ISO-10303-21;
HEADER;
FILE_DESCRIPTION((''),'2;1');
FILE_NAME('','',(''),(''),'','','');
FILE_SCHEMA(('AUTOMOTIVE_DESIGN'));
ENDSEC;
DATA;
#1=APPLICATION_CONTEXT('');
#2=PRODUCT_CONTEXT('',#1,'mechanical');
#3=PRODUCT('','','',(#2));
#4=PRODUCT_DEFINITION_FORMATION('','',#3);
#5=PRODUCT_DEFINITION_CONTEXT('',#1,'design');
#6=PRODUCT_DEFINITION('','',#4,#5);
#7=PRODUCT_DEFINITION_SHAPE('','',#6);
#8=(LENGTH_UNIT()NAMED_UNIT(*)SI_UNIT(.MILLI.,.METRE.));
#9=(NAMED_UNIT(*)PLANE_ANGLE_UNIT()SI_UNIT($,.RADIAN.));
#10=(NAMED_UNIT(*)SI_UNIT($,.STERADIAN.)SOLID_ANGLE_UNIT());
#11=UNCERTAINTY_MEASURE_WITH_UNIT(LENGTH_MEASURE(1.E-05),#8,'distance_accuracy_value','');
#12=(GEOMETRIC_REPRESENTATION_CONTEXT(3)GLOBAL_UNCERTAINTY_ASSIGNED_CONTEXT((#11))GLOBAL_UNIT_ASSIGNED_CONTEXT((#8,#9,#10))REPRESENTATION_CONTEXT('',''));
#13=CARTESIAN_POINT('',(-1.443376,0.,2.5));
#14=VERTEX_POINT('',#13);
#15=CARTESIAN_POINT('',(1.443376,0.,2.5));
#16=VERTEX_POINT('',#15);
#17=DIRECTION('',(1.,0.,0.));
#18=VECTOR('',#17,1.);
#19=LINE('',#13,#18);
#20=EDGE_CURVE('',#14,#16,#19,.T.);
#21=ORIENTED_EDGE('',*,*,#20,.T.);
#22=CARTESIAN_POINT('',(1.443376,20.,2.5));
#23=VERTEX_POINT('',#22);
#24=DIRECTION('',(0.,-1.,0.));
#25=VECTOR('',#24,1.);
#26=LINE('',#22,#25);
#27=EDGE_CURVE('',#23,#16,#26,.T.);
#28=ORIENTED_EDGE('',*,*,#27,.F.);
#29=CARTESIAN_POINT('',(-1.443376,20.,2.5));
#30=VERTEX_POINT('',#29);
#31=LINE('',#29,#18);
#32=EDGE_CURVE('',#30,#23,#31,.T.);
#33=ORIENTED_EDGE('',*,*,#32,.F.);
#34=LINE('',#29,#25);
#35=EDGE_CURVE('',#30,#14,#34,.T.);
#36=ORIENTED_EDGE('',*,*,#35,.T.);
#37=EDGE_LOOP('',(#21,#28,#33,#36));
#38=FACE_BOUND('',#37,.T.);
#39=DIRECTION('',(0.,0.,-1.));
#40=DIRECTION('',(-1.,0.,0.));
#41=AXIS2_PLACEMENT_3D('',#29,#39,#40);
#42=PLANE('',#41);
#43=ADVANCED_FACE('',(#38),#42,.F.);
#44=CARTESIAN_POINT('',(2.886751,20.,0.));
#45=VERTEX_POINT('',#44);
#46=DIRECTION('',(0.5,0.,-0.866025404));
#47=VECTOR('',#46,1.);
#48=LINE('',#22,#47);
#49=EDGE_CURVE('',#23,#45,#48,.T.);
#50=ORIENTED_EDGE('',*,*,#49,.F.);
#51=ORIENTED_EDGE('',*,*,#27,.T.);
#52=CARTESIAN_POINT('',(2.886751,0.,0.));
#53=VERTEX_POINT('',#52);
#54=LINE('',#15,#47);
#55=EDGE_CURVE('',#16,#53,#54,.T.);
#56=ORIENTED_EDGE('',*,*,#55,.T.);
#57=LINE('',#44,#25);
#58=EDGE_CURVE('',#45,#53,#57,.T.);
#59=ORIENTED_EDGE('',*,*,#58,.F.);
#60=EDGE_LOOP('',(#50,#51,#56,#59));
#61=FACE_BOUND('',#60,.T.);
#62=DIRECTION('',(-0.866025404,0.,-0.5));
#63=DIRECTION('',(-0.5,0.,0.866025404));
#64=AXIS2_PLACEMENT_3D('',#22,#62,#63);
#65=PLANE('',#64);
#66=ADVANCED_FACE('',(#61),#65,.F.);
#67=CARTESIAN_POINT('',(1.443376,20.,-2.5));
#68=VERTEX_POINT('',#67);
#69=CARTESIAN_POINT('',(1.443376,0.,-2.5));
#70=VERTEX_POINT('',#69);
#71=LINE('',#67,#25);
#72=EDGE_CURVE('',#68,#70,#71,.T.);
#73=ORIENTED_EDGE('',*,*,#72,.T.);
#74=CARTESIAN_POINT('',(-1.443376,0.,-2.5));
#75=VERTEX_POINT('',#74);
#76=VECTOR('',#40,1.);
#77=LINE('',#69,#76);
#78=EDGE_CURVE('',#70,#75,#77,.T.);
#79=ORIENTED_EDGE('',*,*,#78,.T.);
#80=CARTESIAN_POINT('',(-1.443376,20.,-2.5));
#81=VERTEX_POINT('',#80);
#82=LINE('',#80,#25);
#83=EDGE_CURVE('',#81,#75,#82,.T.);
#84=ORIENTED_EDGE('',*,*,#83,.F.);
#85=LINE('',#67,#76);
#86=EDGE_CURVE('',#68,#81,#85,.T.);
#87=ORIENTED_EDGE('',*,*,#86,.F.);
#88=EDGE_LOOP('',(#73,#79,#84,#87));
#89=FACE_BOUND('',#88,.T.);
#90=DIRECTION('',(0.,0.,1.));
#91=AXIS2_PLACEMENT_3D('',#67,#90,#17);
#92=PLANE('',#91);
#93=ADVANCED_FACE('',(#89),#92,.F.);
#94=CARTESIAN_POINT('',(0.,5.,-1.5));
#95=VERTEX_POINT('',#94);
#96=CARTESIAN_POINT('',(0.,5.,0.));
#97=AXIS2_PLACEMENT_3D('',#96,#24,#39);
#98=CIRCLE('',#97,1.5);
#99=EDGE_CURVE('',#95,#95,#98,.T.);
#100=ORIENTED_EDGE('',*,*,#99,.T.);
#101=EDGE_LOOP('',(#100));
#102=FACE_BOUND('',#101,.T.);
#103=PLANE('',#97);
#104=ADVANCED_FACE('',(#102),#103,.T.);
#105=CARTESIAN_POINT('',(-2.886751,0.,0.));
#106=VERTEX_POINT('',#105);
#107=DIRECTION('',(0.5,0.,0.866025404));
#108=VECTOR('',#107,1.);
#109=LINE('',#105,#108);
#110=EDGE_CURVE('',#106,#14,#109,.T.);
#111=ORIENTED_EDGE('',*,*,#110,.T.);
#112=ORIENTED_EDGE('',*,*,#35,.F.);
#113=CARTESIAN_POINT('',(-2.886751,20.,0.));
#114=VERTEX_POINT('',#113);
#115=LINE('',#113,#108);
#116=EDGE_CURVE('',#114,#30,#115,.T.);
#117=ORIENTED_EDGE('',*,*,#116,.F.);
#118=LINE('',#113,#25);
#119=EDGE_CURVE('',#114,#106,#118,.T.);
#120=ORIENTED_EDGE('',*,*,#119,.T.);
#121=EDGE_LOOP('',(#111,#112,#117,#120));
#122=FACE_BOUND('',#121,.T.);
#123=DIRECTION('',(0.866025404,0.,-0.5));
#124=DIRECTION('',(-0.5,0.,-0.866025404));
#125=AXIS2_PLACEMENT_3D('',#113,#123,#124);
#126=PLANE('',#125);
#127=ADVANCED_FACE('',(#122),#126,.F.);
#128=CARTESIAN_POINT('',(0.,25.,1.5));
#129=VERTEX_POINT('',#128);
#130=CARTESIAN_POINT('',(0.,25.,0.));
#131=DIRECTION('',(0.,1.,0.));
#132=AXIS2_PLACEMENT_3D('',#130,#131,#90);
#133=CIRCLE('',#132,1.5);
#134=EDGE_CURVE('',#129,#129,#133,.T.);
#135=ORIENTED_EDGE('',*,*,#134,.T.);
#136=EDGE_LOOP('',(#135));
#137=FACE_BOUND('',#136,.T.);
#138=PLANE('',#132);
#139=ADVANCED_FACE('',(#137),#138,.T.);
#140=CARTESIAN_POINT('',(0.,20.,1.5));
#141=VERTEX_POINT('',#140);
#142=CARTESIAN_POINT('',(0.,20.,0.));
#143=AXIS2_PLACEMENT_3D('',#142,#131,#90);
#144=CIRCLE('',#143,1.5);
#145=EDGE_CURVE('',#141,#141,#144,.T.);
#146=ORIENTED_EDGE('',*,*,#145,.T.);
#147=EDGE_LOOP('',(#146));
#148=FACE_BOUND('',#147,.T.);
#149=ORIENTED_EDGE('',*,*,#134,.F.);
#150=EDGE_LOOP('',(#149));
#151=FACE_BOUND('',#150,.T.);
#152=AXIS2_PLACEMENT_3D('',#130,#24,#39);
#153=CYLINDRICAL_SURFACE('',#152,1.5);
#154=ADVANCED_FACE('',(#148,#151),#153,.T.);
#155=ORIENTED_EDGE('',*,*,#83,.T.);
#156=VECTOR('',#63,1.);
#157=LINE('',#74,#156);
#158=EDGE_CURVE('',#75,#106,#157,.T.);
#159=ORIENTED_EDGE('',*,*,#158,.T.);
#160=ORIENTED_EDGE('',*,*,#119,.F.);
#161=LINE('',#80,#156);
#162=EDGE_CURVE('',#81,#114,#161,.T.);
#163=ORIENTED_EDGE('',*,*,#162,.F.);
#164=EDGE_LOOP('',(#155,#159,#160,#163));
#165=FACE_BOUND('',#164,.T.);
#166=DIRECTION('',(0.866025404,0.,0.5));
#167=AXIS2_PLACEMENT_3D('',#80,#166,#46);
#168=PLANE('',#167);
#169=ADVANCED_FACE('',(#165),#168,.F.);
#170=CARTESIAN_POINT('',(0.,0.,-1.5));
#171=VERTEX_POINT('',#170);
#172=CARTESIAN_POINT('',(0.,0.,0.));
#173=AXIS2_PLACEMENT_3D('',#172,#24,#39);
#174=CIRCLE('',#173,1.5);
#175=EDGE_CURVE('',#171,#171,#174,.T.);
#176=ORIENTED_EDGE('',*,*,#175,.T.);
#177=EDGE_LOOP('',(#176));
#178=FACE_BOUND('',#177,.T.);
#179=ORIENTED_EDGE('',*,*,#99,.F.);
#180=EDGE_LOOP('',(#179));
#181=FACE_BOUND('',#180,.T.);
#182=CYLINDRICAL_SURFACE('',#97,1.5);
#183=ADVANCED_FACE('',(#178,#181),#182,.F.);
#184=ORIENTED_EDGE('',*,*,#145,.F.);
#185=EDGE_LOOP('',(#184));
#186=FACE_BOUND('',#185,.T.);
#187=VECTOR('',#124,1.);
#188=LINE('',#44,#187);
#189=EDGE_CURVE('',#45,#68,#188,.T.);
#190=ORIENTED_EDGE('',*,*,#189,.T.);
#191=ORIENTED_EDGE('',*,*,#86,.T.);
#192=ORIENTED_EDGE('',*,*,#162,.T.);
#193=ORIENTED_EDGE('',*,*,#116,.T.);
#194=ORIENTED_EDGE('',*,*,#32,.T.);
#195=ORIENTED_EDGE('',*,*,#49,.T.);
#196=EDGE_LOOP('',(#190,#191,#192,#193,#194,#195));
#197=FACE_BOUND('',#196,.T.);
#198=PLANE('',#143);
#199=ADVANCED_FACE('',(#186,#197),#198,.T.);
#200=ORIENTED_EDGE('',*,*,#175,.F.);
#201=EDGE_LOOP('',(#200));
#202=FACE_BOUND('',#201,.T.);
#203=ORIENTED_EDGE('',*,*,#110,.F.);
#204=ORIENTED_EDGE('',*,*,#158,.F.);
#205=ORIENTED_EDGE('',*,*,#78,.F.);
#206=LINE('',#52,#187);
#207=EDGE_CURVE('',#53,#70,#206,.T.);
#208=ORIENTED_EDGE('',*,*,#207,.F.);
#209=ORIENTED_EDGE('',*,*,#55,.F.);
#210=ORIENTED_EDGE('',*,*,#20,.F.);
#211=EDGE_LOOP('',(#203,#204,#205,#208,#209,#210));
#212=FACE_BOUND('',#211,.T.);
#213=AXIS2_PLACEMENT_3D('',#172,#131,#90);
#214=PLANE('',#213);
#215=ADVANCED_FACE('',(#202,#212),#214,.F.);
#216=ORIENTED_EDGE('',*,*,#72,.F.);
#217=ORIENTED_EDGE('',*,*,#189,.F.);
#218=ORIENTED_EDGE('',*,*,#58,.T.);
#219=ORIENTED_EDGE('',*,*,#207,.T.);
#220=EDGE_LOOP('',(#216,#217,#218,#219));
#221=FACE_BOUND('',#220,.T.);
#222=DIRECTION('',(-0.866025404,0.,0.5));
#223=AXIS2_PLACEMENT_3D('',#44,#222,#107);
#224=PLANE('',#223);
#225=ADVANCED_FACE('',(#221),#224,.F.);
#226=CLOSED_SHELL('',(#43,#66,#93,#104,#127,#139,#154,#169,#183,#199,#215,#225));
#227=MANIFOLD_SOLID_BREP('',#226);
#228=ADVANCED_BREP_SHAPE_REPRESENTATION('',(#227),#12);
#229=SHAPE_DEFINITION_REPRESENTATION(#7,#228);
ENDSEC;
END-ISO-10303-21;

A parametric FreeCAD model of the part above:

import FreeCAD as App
import Part
import Sketcher
from FreeCAD import Vector
Q = App.Units.Quantity

doc = App.newDocument("Part")
body = doc.addObject("PartDesign::Body", "Body")

sketch1 = doc.addObject("Sketcher::SketchObject", "Sketch")
body.addObject(sketch1)
sketch1.AttachmentSupport = (doc.XZ_Plane, [""])
sketch1.MapMode = "FlatFace"
sketch1.addGeometry(Part.LineSegment(Vector(2.9, 0, 0), Vector(1.4, -2.5, 0)), False)
sketch1.addGeometry(Part.LineSegment(Vector(1.4, -2.5, 0), Vector(-1.4, -2.5, 0)), False)
sketch1.addGeometry(Part.LineSegment(Vector(-1.4, -2.5, 0), Vector(-2.9, 0, 0)), False)
sketch1.addGeometry(Part.LineSegment(Vector(-2.9, 0, 0), Vector(-1.4, 2.5, 0)), False)
sketch1.addGeometry(Part.LineSegment(Vector(-1.4, 2.5, 0), Vector(1.4, 2.5, 0)), False)
sketch1.addGeometry(Part.LineSegment(Vector(1.4, 2.5, 0), Vector(2.9, 0, 0)), False)
sketch1.addConstraint(Sketcher.Constraint("Coincident", 0, 2, 1, 1))
sketch1.addConstraint(Sketcher.Constraint("Coincident", 1, 2, 2, 1))
sketch1.addConstraint(Sketcher.Constraint("Coincident", 2, 2, 3, 1))
sketch1.addConstraint(Sketcher.Constraint("Coincident", 3, 2, 4, 1))
sketch1.addConstraint(Sketcher.Constraint("Coincident", 4, 2, 5, 1))
sketch1.addConstraint(Sketcher.Constraint("Coincident", 5, 2, 0, 1))
sketch1.addConstraint(Sketcher.Constraint("Horizontal", 1))
sketch1.addConstraint(Sketcher.Constraint("Horizontal", 4))
sketch1.addConstraint(Sketcher.Constraint("Symmetric", 0, 2, 3, 2, -1, 1))
sketch1.addConstraint(Sketcher.Constraint("Symmetric", 2, 2, 5, 2, -1, 1))
sketch1.addConstraint(Sketcher.Constraint("PointOnObject", 2, 2, -1))
sketch1.addConstraint(Sketcher.Constraint("Parallel", 2, 5))
sketch1.addConstraint(Sketcher.Constraint("Vertical", 1, 2, 3, 2))
sketch1.addConstraint(Sketcher.Constraint("Angle", 0, Q("-120 deg")))
sketch1.addConstraint(Sketcher.Constraint("DistanceY", 1, 2, 3, 2, 5.0))
sketch1.addConstraint(Sketcher.Constraint("DistanceX", 1, 2, 1, 1, 2.886751))
pad1 = doc.addObject("PartDesign::Pad", "Pad")
body.addObject(pad1)
pad1.Profile = sketch1
pad1.Length = 20
pad1.Reversed = True

sketch2 = doc.addObject("Sketcher::SketchObject", "Sketch001")
body.addObject(sketch2)
sketch2.AttachmentSupport = (doc.XZ_Plane, [""])
sketch2.MapMode = "FlatFace"
sketch2.AttachmentOffset = App.Placement(Vector(0, 0, -20), App.Rotation())
sketch2.addGeometry(Part.Circle(Vector(0, 0, 0), Vector(0, 0, 1), 1.5), False)
sketch2.addConstraint(Sketcher.Constraint("Coincident", 0, 3, -1, 1))
sketch2.addConstraint(Sketcher.Constraint("Diameter", 0, 3.0))
pad2 = doc.addObject("PartDesign::Pad", "Pad001")
body.addObject(pad2)
pad2.Profile = sketch2
pad2.Length = 5
pad2.Reversed = True

sketch3 = doc.addObject("Sketcher::SketchObject", "Sketch002")
body.addObject(sketch3)
sketch3.AttachmentSupport = (doc.XZ_Plane, [""])
sketch3.MapMode = "FlatFace"
sketch3.addGeometry(Part.Circle(Vector(0, 0, 0), Vector(0, 0, 1), 1.5), False)
sketch3.addConstraint(Sketcher.Constraint("Coincident", 0, 3, -1, 1))
sketch3.addConstraint(Sketcher.Constraint("Diameter", 0, 3.0))
pocket1 = doc.addObject("PartDesign::Pocket", "Pocket")
body.addObject(pocket1)
pocket1.Profile = sketch3
pocket1.Length = 5

doc.recompute()
